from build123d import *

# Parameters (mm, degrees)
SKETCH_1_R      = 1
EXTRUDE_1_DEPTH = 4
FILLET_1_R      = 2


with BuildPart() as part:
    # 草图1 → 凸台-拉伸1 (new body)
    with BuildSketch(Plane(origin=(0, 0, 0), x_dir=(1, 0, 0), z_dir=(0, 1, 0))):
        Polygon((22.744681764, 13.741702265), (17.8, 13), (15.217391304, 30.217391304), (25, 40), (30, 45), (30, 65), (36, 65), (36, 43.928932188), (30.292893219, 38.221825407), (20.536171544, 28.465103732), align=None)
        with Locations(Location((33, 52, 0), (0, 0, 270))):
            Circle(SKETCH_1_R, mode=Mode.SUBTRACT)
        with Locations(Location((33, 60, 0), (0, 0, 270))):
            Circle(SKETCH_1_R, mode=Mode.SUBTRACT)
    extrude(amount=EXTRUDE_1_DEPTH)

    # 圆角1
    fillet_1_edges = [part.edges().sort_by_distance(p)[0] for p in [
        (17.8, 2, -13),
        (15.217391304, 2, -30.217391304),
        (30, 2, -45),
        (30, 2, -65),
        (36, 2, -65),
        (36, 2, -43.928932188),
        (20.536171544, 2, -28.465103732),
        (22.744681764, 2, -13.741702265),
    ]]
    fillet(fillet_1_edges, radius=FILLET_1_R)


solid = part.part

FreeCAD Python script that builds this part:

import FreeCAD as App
import Part
import Sketcher
Q = App.Units.Quantity


def edges_at(feature, points):
    """Names of the edges that pass closest to the given points."""
    edges = feature.Shape.Edges
    near = lambda p: min(range(len(edges)), key=lambda i: edges[i].distToShape(Part.Vertex(*p))[0])
    return sorted({f"Edge{near(p) + 1}" for p in points})


def add_polygon(sketch, points):
    """Adds a closed chain of lines whose ends are joined by coincident constraints."""
    first, n = sketch.GeometryCount, len(points)
    for a, b in zip(points, points[1:] + points[:1]):
        sketch.addGeometry(Part.LineSegment(App.Vector(*a, 0), App.Vector(*b, 0)), False)
    for i in range(n):
        sketch.addConstraint(Sketcher.Constraint("Coincident", first + i, 2, first + (i + 1) % n, 1))

doc = App.newDocument("Part")
body = doc.addObject("PartDesign::Body", "Body")

sketch1 = body.newObject("Sketcher::SketchObject", "Sketch")
sketch1.AttachmentSupport = (doc.getObject("XZ_Plane"), [""])
sketch1.MapMode = "FlatFace"
add_polygon(sketch1, [(17.8, -13), (22.7, -13.7), (20.5, -28.5), (36, -43.9), (36, -65), (30, -65), (30, -45), (15.2, -30.2)])
sketch1.addGeometry(Part.Circle(App.Vector(33, -52, 0), App.Vector(0, 0, 1), 1), False)
sketch1.addGeometry(Part.Circle(App.Vector(33, -60, 0), App.Vector(0, 0, 1), 1), False)
sketch1.addConstraint([
    Sketcher.Constraint("Vertical", 3),
    Sketcher.Constraint("Horizontal", 4),
    Sketcher.Constraint("Vertical", 5),
    Sketcher.Constraint("Equal", 8, 9),
    Sketcher.Constraint("Perpendicular", 0, 1),
    Sketcher.Constraint("Parallel", 2, 6),
    Sketcher.Constraint("Parallel", 1, 7),
    Sketcher.Constraint("Vertical", 8, 3, 9, 3),
    Sketcher.Constraint("Diameter", 8, Q("2 mm")),
    Sketcher.Constraint("DistanceX", 4, 2, 4, 1, Q("6 mm")),
    Sketcher.Constraint("DistanceY", 5, 1, 5, 2, Q("20 mm")),
    Sketcher.Constraint("Angle", 2, Q("-45 deg")),
    Sketcher.Constraint("Distance", 0, Q("5 mm")),
    Sketcher.Constraint("DistanceX", -1, 1, 8, 3, Q("33 mm")),
    Sketcher.Constraint("DistanceY", 8, 3, -1, 1, Q("52 mm")),
    Sketcher.Constraint("DistanceY", 9, 3, -1, 1, Q("60 mm")),
    Sketcher.Constraint("DistanceX", -1, 1, 2, 2, Q("36 mm")),
    Sketcher.Constraint("DistanceY", 3, 2, -1, 1, Q("65 mm")),
    Sketcher.Constraint("DistanceY", 7, 2, -1, 1, Q("13 mm")),
    Sketcher.Constraint("DistanceX", -1, 1, 7, 2, Q("17.8 mm")),
    Sketcher.Constraint("DistanceY", 1, 2, 0, 2, Q("14.723401 mm")),
    Sketcher.Constraint("Distance", 1, Q("14.888118 mm")),
])
pad1 = body.newObject("PartDesign::Pad", "Pad")
pad1.Profile = sketch1
pad1.Length = 4
pad1.Reversed = True
doc.recompute()

fillet = body.newObject("PartDesign::Fillet", "Fillet")
fillet.Base = (pad1, edges_at(pad1, [
    (17.8, 2, -13),
    (15.217, 2, -30.217),
    (30, 2, -45),
    (30, 2, -65),
    (36, 2, -65),
    (36, 2, -43.929),
    (20.536, 2, -28.465),
    (22.745, 2, -13.742),
]))
fillet.Radius = 2

doc.recompute()
